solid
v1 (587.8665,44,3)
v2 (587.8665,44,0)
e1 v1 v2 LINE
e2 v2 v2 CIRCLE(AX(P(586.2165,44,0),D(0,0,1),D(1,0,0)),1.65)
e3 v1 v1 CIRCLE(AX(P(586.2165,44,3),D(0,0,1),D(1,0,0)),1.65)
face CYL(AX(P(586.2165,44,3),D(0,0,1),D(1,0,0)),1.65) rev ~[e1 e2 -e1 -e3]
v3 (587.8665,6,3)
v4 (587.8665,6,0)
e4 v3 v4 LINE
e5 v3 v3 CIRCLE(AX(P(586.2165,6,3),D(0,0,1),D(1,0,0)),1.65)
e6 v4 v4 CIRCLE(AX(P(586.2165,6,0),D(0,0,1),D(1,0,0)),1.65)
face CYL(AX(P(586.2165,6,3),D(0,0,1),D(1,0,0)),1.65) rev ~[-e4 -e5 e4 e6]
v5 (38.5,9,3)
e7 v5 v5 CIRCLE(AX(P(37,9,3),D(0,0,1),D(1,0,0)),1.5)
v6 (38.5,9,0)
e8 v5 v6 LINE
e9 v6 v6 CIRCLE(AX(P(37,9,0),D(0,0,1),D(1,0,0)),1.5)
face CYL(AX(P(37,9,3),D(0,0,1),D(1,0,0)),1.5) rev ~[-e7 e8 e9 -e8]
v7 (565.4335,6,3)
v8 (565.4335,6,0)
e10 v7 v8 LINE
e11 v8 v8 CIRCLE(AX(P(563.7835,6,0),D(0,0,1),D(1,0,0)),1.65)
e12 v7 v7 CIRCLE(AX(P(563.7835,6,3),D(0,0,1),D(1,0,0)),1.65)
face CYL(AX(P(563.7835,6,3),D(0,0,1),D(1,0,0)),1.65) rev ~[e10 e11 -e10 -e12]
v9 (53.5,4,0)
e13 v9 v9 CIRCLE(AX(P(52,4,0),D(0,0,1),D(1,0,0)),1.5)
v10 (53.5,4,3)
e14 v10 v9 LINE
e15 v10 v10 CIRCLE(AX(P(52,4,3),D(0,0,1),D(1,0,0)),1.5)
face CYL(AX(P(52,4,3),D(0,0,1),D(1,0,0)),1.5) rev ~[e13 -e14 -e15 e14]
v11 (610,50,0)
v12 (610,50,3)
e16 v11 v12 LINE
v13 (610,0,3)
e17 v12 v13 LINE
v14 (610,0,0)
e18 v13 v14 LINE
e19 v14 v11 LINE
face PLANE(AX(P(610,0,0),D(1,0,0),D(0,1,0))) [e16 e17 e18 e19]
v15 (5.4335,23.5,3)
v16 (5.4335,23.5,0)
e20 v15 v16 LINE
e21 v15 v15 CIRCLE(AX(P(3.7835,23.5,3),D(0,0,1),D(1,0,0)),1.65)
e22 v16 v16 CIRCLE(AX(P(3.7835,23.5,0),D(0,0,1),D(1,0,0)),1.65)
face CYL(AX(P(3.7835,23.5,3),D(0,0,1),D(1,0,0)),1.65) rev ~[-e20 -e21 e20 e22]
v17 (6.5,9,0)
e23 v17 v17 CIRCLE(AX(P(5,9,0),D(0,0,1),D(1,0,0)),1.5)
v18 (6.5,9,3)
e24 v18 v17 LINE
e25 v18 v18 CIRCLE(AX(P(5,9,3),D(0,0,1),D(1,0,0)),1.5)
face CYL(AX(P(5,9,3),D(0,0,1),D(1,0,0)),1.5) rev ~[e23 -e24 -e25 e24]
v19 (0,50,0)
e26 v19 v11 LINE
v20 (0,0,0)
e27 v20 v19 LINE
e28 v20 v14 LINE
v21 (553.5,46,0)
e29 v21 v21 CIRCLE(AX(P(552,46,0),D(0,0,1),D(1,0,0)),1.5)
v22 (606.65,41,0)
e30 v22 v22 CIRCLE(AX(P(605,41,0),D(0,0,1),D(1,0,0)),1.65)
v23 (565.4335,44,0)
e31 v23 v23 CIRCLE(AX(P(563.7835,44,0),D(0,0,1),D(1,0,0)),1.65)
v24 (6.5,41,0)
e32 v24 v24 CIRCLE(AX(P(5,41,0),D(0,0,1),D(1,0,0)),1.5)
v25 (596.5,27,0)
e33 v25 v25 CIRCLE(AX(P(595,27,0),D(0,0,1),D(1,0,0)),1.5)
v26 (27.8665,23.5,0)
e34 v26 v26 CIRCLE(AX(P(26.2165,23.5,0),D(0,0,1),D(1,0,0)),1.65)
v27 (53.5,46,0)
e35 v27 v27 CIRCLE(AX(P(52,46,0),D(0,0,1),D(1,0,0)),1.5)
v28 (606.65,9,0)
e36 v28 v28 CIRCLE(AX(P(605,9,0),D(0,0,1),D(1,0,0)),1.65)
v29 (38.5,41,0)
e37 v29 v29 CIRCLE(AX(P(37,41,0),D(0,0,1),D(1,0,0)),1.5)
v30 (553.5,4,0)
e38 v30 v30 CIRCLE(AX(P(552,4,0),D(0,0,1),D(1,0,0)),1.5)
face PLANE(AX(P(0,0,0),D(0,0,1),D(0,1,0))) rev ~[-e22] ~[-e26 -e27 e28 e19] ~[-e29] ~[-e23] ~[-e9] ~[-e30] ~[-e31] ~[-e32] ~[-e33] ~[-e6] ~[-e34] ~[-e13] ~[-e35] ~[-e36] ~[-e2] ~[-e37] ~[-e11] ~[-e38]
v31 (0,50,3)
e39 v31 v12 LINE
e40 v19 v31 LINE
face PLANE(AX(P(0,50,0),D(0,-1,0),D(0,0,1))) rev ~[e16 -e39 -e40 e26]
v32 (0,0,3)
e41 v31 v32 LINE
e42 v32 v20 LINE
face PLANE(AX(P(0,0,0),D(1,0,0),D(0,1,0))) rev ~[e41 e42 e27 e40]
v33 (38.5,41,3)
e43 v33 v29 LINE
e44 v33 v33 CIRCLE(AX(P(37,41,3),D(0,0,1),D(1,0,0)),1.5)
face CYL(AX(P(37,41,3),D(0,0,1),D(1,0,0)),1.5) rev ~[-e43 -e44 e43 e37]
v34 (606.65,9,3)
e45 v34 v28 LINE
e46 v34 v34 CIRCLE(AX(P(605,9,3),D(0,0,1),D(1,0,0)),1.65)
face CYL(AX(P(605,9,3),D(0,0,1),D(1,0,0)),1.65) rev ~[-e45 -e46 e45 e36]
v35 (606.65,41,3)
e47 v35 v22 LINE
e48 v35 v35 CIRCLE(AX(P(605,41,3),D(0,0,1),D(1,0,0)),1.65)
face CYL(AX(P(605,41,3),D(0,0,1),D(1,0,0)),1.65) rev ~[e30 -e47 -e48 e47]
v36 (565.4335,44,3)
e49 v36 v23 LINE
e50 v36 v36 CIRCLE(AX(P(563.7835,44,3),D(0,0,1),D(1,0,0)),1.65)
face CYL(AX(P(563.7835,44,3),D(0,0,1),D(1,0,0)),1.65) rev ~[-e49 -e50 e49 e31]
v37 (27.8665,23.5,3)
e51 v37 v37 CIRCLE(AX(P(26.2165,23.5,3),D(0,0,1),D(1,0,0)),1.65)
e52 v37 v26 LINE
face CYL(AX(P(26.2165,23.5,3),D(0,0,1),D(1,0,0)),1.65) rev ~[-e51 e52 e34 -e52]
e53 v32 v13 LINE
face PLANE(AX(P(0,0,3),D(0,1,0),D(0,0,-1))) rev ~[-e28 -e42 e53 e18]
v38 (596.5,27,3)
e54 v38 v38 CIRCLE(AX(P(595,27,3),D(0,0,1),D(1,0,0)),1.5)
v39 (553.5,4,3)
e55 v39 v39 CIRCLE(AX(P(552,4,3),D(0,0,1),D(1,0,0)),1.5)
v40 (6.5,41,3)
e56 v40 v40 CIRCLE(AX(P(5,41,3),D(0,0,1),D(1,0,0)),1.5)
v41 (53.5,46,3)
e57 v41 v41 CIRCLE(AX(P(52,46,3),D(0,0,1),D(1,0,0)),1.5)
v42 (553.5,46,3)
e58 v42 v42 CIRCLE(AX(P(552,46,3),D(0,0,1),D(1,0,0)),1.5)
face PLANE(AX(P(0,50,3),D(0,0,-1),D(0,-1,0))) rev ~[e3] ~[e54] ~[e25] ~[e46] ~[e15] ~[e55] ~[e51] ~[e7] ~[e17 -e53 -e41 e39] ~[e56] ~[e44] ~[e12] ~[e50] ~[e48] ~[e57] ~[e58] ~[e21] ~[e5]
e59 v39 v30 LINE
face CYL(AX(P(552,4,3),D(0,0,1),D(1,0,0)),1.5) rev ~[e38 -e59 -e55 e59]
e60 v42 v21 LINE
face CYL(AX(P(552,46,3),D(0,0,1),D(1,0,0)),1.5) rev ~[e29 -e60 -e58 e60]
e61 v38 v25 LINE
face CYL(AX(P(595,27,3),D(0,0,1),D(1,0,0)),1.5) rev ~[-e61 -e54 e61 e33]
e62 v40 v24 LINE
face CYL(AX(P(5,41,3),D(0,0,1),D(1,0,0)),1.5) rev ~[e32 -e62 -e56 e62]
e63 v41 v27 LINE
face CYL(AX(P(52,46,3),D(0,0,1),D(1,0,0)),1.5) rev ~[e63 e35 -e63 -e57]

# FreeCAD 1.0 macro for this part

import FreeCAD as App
import Part
import Sketcher

V = App.Vector


def add_polygon(sketch, points):
    """Adds a closed chain of lines whose ends are joined by coincident constraints."""
    first, n = sketch.GeometryCount, len(points)
    for a, b in zip(points, points[1:] + points[:1]):
        sketch.addGeometry(Part.LineSegment(App.Vector(*a, 0), App.Vector(*b, 0)), False)
    for i in range(n):
        sketch.addConstraint(Sketcher.Constraint("Coincident", first + i, 2, first + (i + 1) % n, 1))

doc = App.newDocument("Part")
body = doc.addObject("PartDesign::Body", "Body")

# Sketch on YZ plane
sketch1 = doc.addObject("Sketcher::SketchObject", "Sketch")
body.addObject(sketch1)
sketch1.AttachmentSupport = (doc.YZ_Plane, [""])
sketch1.MapMode = "FlatFace"
add_polygon(sketch1, [(0, 3), (0, 0), (50, 0), (50, 3)])  # lines 0-3
sketch1.addConstraint(Sketcher.Constraint("Vertical", 0))
sketch1.addConstraint(Sketcher.Constraint("Horizontal", 1))
sketch1.addConstraint(Sketcher.Constraint("Vertical", 2))
sketch1.addConstraint(Sketcher.Constraint("Horizontal", 3))
sketch1.addConstraint(Sketcher.Constraint("Coincident", 0, 2, -1, 1))
sketch1.addConstraint(Sketcher.Constraint("DistanceX", 1, 1, 1, 2, 50.0))
sketch1.addConstraint(Sketcher.Constraint("DistanceY", 0, 2, 0, 1, 3.0))
pad1 = doc.addObject("PartDesign::Pad", "Pad")
body.addObject(pad1)
pad1.Profile = sketch1
pad1.Length = 610

# Sketch on XY plane
sketch2 = doc.addObject("Sketcher::SketchObject", "Sketch001")
body.addObject(sketch2)
sketch2.AttachmentSupport = (doc.XY_Plane, [""])
sketch2.MapMode = "FlatFace"
sketch2.AttachmentOffset = App.Placement(V(0, 0, 3), App.Rotation())
sketch2.addGeometry(Part.Circle(V(5, 41, 0), V(0, 0, 1), 1.5), False)
sketch2.addGeometry(Part.Circle(V(37, 41, 0), V(0, 0, 1), 1.5), False)
sketch2.addGeometry(Part.Circle(V(37, 9, 0), V(0, 0, 1), 1.5), False)
sketch2.addGeometry(Part.Circle(V(5, 9, 0), V(0, 0, 1), 1.5), False)
sketch2.addGeometry(Part.Circle(V(595, 27, 0), V(0, 0, 1), 1.5), False)
sketch2.addGeometry(Part.Circle(V(563.8, 44, 0), V(0, 0, 1), 1.6), False)
sketch2.addGeometry(Part.Circle(V(586.2, 44, 0), V(0, 0, 1), 1.6), False)
sketch2.addGeometry(Part.Circle(V(586.2, 6, 0), V(0, 0, 1), 1.6), False)
sketch2.addGeometry(Part.Circle(V(563.8, 6, 0), V(0, 0, 1), 1.6), False)
sketch2.addGeometry(Part.Circle(V(552, 4, 0), V(0, 0, 1), 1.5), False)
sketch2.addGeometry(Part.Circle(V(552, 46, 0), V(0, 0, 1), 1.5), False)
sketch2.addGeometry(Part.Circle(V(605, 41, 0), V(0, 0, 1), 1.6), False)
sketch2.addGeometry(Part.Circle(V(605, 9, 0), V(0, 0, 1), 1.6), False)
sketch2.addGeometry(Part.Circle(V(52, 46, 0), V(0, 0, 1), 1.5), False)
sketch2.addGeometry(Part.Circle(V(52, 4, 0), V(0, 0, 1), 1.5), False)
sketch2.addGeometry(Part.Circle(V(26.2, 23.5, 0), V(0, 0, 1), 1.6), False)
sketch2.addGeometry(Part.Circle(V(3.8, 23.5, 0), V(0, 0, 1), 1.6), False)
sketch2.addConstraint(Sketcher.Constraint("Equal", 0, 1))
sketch2.addConstraint(Sketcher.Constraint("Equal", 1, 2))
sketch2.addConstraint(Sketcher.Constraint("Equal", 2, 3))
sketch2.addConstraint(Sketcher.Constraint("Equal", 3, 4))
sketch2.addConstraint(Sketcher.Constraint("Equal", 5, 6))
sketch2.addConstraint(Sketcher.Constraint("Equal", 6, 7))
sketch2.addConstraint(Sketcher.Constraint("Equal", 7, 8))
sketch2.addConstraint(Sketcher.Constraint("Equal", 4, 9))
sketch2.addConstraint(Sketcher.Constraint("Equal", 9, 10))
sketch2.addConstraint(Sketcher.Constraint("Equal", 8, 11))
sketch2.addConstraint(Sketcher.Constraint("Equal", 11, 12))
sketch2.addConstraint(Sketcher.Constraint("Equal", 10, 13))
sketch2.addConstraint(Sketcher.Constraint("Equal", 13, 14))
sketch2.addConstraint(Sketcher.Constraint("Equal", 12, 15))
sketch2.addConstraint(Sketcher.Constraint("Equal", 15, 16))
sketch2.addConstraint(Sketcher.Constraint("Horizontal", 0, 3, 1, 3))
sketch2.addConstraint(Sketcher.Constraint("Horizontal", 2, 3, 3, 3))
sketch2.addConstraint(Sketcher.Constraint("Horizontal", 5, 3, 6, 3))
sketch2.addConstraint(Sketcher.Constraint("Horizontal", 7, 3, 8, 3))
sketch2.addConstraint(Sketcher.Constraint("Horizontal", 1, 3, 11, 3))
sketch2.addConstraint(Sketcher.Constraint("Horizontal", 3, 3, 12, 3))
sketch2.addConstraint(Sketcher.Constraint("Horizontal", 10, 3, 13, 3))
sketch2.addConstraint(Sketcher.Constraint("Horizontal", 9, 3, 14, 3))
sketch2.addConstraint(Sketcher.Constraint("Horizontal", 15, 3, 16, 3))
sketch2.addConstraint(Sketcher.Constraint("Vertical", 1, 3, 2, 3))
sketch2.addConstraint(Sketcher.Constraint("Vertical", 0, 3, 3, 3))
sketch2.addConstraint(Sketcher.Constraint("Vertical", 6, 3, 7, 3))
sketch2.addConstraint(Sketcher.Constraint("Vertical", 5, 3, 8, 3))
sketch2.addConstraint(Sketcher.Constraint("Vertical", 9, 3, 10, 3))
sketch2.addConstraint(Sketcher.Constraint("Vertical", 11, 3, 12, 3))
sketch2.addConstraint(Sketcher.Constraint("Vertical", 13, 3, 14, 3))
sketch2.addConstraint(Sketcher.Constraint("Diameter", 0, 3.0))
sketch2.addConstraint(Sketcher.Constraint("DistanceX", -1, 1, 0, 3, 5.0))
sketch2.addConstraint(Sketcher.Constraint("DistanceY", -1, 1, 4, 3, 27.0))
sketch2.addConstraint(Sketcher.Constraint("DistanceX", 0, 3, 1, 3, 32.0))
sketch2.addConstraint(Sketcher.Constraint("DistanceY", 2, 3, 1, 3, 32.0))
sketch2.addConstraint(Sketcher.Constraint("DistanceY", 1, 3, 5, 3, 3.0))
sketch2.addConstraint(Sketcher.Constraint("DistanceY", 7, 3, 2, 3, 3.0))
sketch2.addConstraint(Sketcher.Constraint("DistanceY", 11, 3, 10, 3, 5.0))
sketch2.addConstraint(Sketcher.Constraint("DistanceX", 1, 3, 13, 3, 15.0))
sketch2.addConstraint(Sketcher.Constraint("DistanceY", 14, 3, 2, 3, 5.0))
sketch2.addConstraint(Sketcher.Constraint("Diameter", 5, 3.3))
sketch2.addConstraint(Sketcher.Constraint("DistanceY", -1, 1, 0, 3, 41.0))
sketch2.addConstraint(Sketcher.Constraint("DistanceX", -1, 1, 4, 3, 595.0))
sketch2.addConstraint(Sketcher.Constraint("DistanceX", -1, 1, 9, 3, 552.0))
sketch2.addConstraint(Sketcher.Constraint("DistanceX", -1, 1, 11, 3, 605.0))
sketch2.addConstraint(Sketcher.Constraint("DistanceY", -1, 1, 15, 3, 23.5))
sketch2.addConstraint(Sketcher.Constraint("DistanceX", 5, 3, 6, 3, 22.433))
sketch2.addConstraint(Sketcher.Constraint("DistanceX", 16, 3, 15, 3, 22.433))
sketch2.addConstraint(Sketcher.Constraint("DistanceX", -1, 1, 5, 3, 563.7835))
sketch2.addConstraint(Sketcher.Constraint("DistanceX", -1, 1, 15, 3, 26.2165))
pocket1 = doc.addObject("PartDesign::Pocket", "Pocket")
body.addObject(pocket1)
pocket1.Profile = sketch2
pocket1.Length = 10

doc.recompute()
